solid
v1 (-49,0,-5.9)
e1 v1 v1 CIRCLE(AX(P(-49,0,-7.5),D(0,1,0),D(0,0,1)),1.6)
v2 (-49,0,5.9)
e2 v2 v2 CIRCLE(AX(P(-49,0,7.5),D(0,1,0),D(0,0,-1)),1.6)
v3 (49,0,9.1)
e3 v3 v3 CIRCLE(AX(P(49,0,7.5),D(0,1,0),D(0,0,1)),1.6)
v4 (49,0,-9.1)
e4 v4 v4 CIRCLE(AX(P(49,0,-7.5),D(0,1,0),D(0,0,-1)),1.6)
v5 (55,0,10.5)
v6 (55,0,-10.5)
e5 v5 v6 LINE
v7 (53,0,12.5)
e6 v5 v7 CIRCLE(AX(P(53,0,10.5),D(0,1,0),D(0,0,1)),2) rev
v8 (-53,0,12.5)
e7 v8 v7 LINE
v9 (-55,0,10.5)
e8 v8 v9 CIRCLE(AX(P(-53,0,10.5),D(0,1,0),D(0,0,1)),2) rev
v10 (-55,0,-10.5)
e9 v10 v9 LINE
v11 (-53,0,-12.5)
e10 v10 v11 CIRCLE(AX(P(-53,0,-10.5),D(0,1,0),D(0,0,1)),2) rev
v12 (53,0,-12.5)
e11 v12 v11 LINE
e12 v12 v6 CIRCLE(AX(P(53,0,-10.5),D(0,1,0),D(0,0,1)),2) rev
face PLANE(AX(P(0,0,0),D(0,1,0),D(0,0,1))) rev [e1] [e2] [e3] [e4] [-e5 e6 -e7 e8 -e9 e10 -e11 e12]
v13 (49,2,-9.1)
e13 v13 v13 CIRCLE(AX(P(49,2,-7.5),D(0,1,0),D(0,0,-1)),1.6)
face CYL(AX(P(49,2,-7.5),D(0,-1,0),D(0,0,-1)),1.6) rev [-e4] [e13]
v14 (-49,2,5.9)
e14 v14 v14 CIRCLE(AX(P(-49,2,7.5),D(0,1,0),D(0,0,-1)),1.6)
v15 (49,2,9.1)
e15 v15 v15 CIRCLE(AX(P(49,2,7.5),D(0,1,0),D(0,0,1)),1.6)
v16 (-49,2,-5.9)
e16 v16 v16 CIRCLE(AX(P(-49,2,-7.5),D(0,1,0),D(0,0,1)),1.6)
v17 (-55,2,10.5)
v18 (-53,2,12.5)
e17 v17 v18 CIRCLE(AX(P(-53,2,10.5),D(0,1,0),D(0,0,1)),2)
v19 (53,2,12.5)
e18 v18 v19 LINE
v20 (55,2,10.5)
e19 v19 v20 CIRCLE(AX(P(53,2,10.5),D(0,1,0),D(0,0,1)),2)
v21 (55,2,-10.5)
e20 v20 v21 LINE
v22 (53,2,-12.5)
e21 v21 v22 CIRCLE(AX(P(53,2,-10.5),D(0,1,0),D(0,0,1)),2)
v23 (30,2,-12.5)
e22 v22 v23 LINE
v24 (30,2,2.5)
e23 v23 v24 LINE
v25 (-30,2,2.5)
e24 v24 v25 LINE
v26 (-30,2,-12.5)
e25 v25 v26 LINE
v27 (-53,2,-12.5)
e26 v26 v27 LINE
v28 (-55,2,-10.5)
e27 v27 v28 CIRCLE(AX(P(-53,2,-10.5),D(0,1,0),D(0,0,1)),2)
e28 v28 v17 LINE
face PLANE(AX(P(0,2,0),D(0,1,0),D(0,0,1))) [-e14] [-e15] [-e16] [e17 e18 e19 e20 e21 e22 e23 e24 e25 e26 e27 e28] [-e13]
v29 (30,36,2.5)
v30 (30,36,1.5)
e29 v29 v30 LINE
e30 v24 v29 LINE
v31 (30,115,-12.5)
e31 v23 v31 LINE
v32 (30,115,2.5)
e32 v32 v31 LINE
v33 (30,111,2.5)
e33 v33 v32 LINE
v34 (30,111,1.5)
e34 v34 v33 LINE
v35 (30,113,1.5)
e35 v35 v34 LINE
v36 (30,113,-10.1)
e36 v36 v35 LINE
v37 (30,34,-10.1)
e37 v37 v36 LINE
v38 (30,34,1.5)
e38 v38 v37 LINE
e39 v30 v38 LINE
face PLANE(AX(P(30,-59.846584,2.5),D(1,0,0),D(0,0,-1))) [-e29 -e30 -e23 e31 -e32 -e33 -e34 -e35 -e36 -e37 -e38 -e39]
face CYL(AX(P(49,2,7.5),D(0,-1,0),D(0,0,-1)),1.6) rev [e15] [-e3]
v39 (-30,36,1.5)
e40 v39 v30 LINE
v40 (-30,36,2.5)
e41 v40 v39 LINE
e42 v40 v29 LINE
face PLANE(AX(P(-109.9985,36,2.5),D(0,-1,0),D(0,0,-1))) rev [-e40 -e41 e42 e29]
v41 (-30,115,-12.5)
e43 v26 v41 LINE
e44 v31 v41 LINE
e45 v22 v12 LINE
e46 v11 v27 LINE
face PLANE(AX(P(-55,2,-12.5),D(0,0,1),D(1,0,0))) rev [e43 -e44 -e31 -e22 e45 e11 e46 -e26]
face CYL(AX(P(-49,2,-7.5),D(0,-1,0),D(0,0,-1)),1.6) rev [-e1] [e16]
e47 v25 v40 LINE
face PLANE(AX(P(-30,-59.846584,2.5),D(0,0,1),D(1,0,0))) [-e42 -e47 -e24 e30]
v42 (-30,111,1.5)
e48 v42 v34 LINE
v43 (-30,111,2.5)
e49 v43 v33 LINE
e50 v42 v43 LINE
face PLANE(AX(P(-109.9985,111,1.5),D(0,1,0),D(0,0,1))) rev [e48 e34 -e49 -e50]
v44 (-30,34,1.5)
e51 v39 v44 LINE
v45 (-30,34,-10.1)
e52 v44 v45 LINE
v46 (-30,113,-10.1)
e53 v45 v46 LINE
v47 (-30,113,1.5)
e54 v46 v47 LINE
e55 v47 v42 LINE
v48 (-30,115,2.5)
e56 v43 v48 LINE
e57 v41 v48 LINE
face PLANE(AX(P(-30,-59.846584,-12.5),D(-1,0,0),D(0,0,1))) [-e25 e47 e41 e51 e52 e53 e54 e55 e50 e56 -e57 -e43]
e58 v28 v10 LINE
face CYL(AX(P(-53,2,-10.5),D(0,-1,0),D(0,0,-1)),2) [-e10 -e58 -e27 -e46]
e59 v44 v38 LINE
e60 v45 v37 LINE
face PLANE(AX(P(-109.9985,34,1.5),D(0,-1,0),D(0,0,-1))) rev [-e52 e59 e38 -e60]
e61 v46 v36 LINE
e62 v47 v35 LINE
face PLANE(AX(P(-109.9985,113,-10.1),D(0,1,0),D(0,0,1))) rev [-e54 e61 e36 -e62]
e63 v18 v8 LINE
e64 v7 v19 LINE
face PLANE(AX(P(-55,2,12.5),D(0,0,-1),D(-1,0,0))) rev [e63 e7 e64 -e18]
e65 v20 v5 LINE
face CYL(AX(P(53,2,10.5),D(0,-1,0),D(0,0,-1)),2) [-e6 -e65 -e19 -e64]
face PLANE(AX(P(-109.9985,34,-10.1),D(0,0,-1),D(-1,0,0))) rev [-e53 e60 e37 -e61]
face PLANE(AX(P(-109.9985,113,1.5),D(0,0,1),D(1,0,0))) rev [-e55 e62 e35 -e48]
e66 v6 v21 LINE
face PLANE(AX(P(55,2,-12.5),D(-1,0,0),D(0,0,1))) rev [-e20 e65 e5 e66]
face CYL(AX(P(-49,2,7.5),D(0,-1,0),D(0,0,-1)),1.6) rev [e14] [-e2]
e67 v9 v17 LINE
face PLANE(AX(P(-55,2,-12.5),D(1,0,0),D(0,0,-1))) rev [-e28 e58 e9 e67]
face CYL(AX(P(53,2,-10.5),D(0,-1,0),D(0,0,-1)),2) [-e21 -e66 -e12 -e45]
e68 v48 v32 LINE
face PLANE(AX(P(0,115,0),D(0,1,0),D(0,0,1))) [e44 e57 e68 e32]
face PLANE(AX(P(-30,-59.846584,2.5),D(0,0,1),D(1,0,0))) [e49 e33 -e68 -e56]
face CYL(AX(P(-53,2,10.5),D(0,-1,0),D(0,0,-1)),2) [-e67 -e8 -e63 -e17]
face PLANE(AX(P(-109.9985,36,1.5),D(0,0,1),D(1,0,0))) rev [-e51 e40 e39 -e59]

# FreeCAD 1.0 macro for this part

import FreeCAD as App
import Part
import Sketcher
from FreeCAD import Vector
Q = App.Units.Quantity


def edges_at(feature, points):
    """Names of the edges that pass closest to the given points."""
    edges = feature.Shape.Edges
    near = lambda p: min(range(len(edges)), key=lambda i: edges[i].distToShape(Part.Vertex(*p))[0])
    return sorted({f"Edge{near(p) + 1}" for p in points})

doc = App.newDocument("Part")
params = doc.addObject("Spreadsheet::Sheet", "Params")
for row, (alias, value) in enumerate([
    ("sketch1_diameter", "3.2 mm"),
    ("sketch1_width", "110 mm"),
    ("sketch1_height", "25 mm"),
    ("pad1_length", "2 mm"),
    ("sketch2_width", "60 mm"),
    ("sketch2_height", "15 mm"),
    ("pad2_length", "113 mm"),
    ("sketch3_width", "2 mm"),
    ("sketch3_width2", "79 mm"),
    ("sketch3_height", "1 mm"),
    ("sketch3_height2", "11.6 mm"),
    ("pocket1_length", "60 mm"),
    ("fillet_radius", "2 mm"),
    ("fillet2_radius", "2 mm"),
    ("fillet3_radius", "2 mm"),
    ("fillet4_radius", "2 mm"),
], start=1):
    params.set(f"A{row}", alias)
    params.set(f"B{row}", "=" + value)
    params.setAlias(f"B{row}", alias)

body = doc.addObject("PartDesign::Body", "Body")

# Sketch on XZ plane
sketch1 = doc.addObject("Sketcher::SketchObject", "Sketch")
body.addObject(sketch1)
sketch1.AttachmentSupport = (doc.XZ_Plane, [""])
sketch1.MapMode = "FlatFace"
sketch1.addGeometry([
    Part.LineSegment(Vector(-55, -12.5, 0), Vector(-55, 12.5, 0)),  # 0
    Part.LineSegment(Vector(-55, 12.5, 0), Vector(55, 12.5, 0)),  # 1
    Part.LineSegment(Vector(55, 12.5, 0), Vector(55, -12.5, 0)),  # 2
    Part.LineSegment(Vector(55, -12.5, 0), Vector(-55, -12.5, 0)),  # 3
    Part.Circle(Vector(-49, 7.5, 0), Vector(0, 0, 1), 1.6),  # 4
    Part.Circle(Vector(49, 7.5, 0), Vector(0, 0, 1), 1.6),  # 5
    Part.Circle(Vector(-49, -7.5, 0), Vector(0, 0, 1), 1.6),  # 6
    Part.Circle(Vector(49, -7.5, 0), Vector(0, 0, 1), 1.6),  # 7
], False)
sketch1.addConstraint([
    Sketcher.Constraint("Coincident", 0, 2, 1, 1),
    Sketcher.Constraint("Coincident", 1, 2, 2, 1),
    Sketcher.Constraint("Coincident", 2, 2, 3, 1),
    Sketcher.Constraint("Coincident", 3, 2, 0, 1),
    Sketcher.Constraint("Vertical", 0),
    Sketcher.Constraint("Horizontal", 1),
    Sketcher.Constraint("Vertical", 2),
    Sketcher.Constraint("Horizontal", 3),
    Sketcher.Constraint("Equal", 4, 5),
    Sketcher.Constraint("Equal", 5, 6),
    Sketcher.Constraint("Equal", 6, 7),
    Sketcher.Constraint("Symmetric", 5, 3, 6, 3, -1, 1),
    Sketcher.Constraint("Symmetric", 4, 3, 7, 3, -1, 1),
    Sketcher.Constraint("Symmetric", 0, 2, 2, 2, -1, 1),
    Sketcher.Constraint("Symmetric", 4, 3, 5, 3, -2),
    Sketcher.Constraint("Diameter", 4, Q("3.2 mm")),
    Sketcher.Constraint("DistanceX", 1, 1, 1, 2, Q("110 mm")),
    Sketcher.Constraint("DistanceY", 0, 1, 0, 2, Q("25 mm")),
    Sketcher.Constraint("DistanceX", 4, 3, -1, 1, Q("49 mm")),
    Sketcher.Constraint("DistanceY", 6, 3, 4, 3, Q("15 mm")),
])
sketch1.setExpression("Constraints[15]", "Params.sketch1_diameter")
sketch1.setExpression("Constraints[16]", "Params.sketch1_width")
sketch1.setExpression("Constraints[17]", "Params.sketch1_height")
pad1 = doc.addObject("PartDesign::Pad", "Pad")
body.addObject(pad1)
pad1.Profile = sketch1
pad1.setExpression("Length", "Params.pad1_length")
pad1.Reversed = True

# Sketch on XZ plane
sketch2 = doc.addObject("Sketcher::SketchObject", "Sketch001")
body.addObject(sketch2)
sketch2.AttachmentSupport = (doc.XZ_Plane, [""])
sketch2.MapMode = "FlatFace"
sketch2.AttachmentOffset = App.Placement(Vector(0, 0, -115), App.Rotation())
sketch2.addGeometry([
    Part.LineSegment(Vector(-30, -12, 0), Vector(-30, 2, 0)),
    Part.LineSegment(Vector(-30, 2, 0), Vector(30, 2, 0)),
    Part.LineSegment(Vector(30, 2, 0), Vector(30, -12, 0)),
    Part.LineSegment(Vector(30, -12, 0), Vector(-30, -12, 0)),
], False)
sketch2.addConstraint([
    Sketcher.Constraint("Coincident", 0, 2, 1, 1),
    Sketcher.Constraint("Coincident", 1, 2, 2, 1),
    Sketcher.Constraint("Coincident", 2, 2, 3, 1),
    Sketcher.Constraint("Coincident", 3, 2, 0, 1),
    Sketcher.Constraint("Vertical", 0),
    Sketcher.Constraint("Horizontal", 1),
    Sketcher.Constraint("Vertical", 2),
    Sketcher.Constraint("Horizontal", 3),
    Sketcher.Constraint("DistanceX", 1, 1, 1, 2, Q("60 mm")),
    Sketcher.Constraint("DistanceY", 0, 1, 0, 2, Q("15 mm")),
    Sketcher.Constraint("DistanceX", 0, 2, -1, 1, Q("30 mm")),
    Sketcher.Constraint("DistanceY", -1, 1, 0, 2, Q("2.5 mm")),
])
sketch2.setExpression("Constraints[8]", "Params.sketch2_width")
sketch2.setExpression("Constraints[9]", "Params.sketch2_height")
pad2 = doc.addObject("PartDesign::Pad", "Pad001")
body.addObject(pad2)
pad2.Profile = sketch2
pad2.setExpression("Length", "Params.pad2_length")

# Sketch on YZ plane
sketch3 = doc.addObject("Sketcher::SketchObject", "Sketch002")
body.addObject(sketch3)
sketch3.AttachmentSupport = (doc.YZ_Plane, [""])
sketch3.MapMode = "FlatFace"
sketch3.AttachmentOffset = App.Placement(Vector(0, 0, 30), App.Rotation())
sketch3.addGeometry([
    Part.LineSegment(Vector(36, 2.5, 0), Vector(36, 1.5, 0)),  # 0
    Part.LineSegment(Vector(36, 1.5, 0), Vector(34, 1.5, 0)),  # 1
    Part.LineSegment(Vector(34, 1.5, 0), Vector(34, -10.1, 0)),  # 2
    Part.LineSegment(Vector(34, -10.1, 0), Vector(113, -10.1, 0)),  # 3
    Part.LineSegment(Vector(113, -10.1, 0), Vector(113, 1.5, 0)),  # 4
    Part.LineSegment(Vector(113, 1.5, 0), Vector(111, 1.5, 0)),  # 5
    Part.LineSegment(Vector(111, 1.5, 0), Vector(111, 2.5, 0)),  # 6
    Part.LineSegment(Vector(111, 2.5, 0), Vector(36, 2.5, 0)),  # 7
], False)
sketch3.addConstraint([
    Sketcher.Constraint("Coincident", 0, 2, 1, 1),
    Sketcher.Constraint("Coincident", 1, 2, 2, 1),
    Sketcher.Constraint("Coincident", 2, 2, 3, 1),
    Sketcher.Constraint("Coincident", 3, 2, 4, 1),
    Sketcher.Constraint("Coincident", 4, 2, 5, 1),
    Sketcher.Constraint("Coincident", 5, 2, 6, 1),
    Sketcher.Constraint("Coincident", 6, 2, 7, 1),
    Sketcher.Constraint("Coincident", 7, 2, 0, 1),
    Sketcher.Constraint("Vertical", 0),
    Sketcher.Constraint("Horizontal", 1),
    Sketcher.Constraint("Vertical", 2),
    Sketcher.Constraint("Horizontal", 3),
    Sketcher.Constraint("Vertical", 4),
    Sketcher.Constraint("Horizontal", 5),
    Sketcher.Constraint("Vertical", 6),
    Sketcher.Constraint("Horizontal", 7),
    Sketcher.Constraint("Horizontal", 1, 2, 4, 2),
    Sketcher.Constraint("Equal", 1, 5),
    Sketcher.Constraint("DistanceX", 1, 2, 1, 1, Q("2 mm")),
    Sketcher.Constraint("DistanceX", 3, 1, 3, 2, Q("79 mm")),
    Sketcher.Constraint("DistanceY", 0, 2, 0, 1, Q("1 mm")),
    Sketcher.Constraint("DistanceY", 2, 2, 2, 1, Q("11.6 mm")),
    Sketcher.Constraint("DistanceX", -1, 1, 0, 2, Q("36 mm")),
    Sketcher.Constraint("DistanceY", -1, 1, 0, 2, Q("1.5 mm")),
])
sketch3.setExpression("Constraints[18]", "Params.sketch3_width")
sketch3.setExpression("Constraints[19]", "Params.sketch3_width2")
sketch3.setExpression("Constraints[20]", "Params.sketch3_height")
sketch3.setExpression("Constraints[21]", "Params.sketch3_height2")
pocket1 = doc.addObject("PartDesign::Pocket", "Pocket")
body.addObject(pocket1)
pocket1.Profile = sketch3
pocket1.setExpression("Length", "Params.pocket1_length")
doc.recompute()

fillet = doc.addObject("PartDesign::Fillet", "Fillet")
body.addObject(fillet)
fillet.Base = (pocket1, edges_at(pocket1, [(55, 1, 12.5)]))
fillet.setExpression("Radius", "Params.fillet_radius")
doc.recompute()

fillet2 = doc.addObject("PartDesign::Fillet", "Fillet001")
body.addObject(fillet2)
fillet2.Base = (fillet, edges_at(fillet, [(55, 1, -12.5)]))
fillet2.setExpression("Radius", "Params.fillet2_radius")
doc.recompute()

fillet3 = doc.addObject("PartDesign::Fillet", "Fillet002")
body.addObject(fillet3)
fillet3.Base = (fillet2, edges_at(fillet2, [(-55, 1, -12.5)]))
fillet3.setExpression("Radius", "Params.fillet3_radius")
doc.recompute()

fillet4 = doc.addObject("PartDesign::Fillet", "Fillet003")
body.addObject(fillet4)
fillet4.Base = (fillet3, edges_at(fillet3, [(-55, 1, 12.5)]))
fillet4.setExpression("Radius", "Params.fillet4_radius")

doc.recompute()
